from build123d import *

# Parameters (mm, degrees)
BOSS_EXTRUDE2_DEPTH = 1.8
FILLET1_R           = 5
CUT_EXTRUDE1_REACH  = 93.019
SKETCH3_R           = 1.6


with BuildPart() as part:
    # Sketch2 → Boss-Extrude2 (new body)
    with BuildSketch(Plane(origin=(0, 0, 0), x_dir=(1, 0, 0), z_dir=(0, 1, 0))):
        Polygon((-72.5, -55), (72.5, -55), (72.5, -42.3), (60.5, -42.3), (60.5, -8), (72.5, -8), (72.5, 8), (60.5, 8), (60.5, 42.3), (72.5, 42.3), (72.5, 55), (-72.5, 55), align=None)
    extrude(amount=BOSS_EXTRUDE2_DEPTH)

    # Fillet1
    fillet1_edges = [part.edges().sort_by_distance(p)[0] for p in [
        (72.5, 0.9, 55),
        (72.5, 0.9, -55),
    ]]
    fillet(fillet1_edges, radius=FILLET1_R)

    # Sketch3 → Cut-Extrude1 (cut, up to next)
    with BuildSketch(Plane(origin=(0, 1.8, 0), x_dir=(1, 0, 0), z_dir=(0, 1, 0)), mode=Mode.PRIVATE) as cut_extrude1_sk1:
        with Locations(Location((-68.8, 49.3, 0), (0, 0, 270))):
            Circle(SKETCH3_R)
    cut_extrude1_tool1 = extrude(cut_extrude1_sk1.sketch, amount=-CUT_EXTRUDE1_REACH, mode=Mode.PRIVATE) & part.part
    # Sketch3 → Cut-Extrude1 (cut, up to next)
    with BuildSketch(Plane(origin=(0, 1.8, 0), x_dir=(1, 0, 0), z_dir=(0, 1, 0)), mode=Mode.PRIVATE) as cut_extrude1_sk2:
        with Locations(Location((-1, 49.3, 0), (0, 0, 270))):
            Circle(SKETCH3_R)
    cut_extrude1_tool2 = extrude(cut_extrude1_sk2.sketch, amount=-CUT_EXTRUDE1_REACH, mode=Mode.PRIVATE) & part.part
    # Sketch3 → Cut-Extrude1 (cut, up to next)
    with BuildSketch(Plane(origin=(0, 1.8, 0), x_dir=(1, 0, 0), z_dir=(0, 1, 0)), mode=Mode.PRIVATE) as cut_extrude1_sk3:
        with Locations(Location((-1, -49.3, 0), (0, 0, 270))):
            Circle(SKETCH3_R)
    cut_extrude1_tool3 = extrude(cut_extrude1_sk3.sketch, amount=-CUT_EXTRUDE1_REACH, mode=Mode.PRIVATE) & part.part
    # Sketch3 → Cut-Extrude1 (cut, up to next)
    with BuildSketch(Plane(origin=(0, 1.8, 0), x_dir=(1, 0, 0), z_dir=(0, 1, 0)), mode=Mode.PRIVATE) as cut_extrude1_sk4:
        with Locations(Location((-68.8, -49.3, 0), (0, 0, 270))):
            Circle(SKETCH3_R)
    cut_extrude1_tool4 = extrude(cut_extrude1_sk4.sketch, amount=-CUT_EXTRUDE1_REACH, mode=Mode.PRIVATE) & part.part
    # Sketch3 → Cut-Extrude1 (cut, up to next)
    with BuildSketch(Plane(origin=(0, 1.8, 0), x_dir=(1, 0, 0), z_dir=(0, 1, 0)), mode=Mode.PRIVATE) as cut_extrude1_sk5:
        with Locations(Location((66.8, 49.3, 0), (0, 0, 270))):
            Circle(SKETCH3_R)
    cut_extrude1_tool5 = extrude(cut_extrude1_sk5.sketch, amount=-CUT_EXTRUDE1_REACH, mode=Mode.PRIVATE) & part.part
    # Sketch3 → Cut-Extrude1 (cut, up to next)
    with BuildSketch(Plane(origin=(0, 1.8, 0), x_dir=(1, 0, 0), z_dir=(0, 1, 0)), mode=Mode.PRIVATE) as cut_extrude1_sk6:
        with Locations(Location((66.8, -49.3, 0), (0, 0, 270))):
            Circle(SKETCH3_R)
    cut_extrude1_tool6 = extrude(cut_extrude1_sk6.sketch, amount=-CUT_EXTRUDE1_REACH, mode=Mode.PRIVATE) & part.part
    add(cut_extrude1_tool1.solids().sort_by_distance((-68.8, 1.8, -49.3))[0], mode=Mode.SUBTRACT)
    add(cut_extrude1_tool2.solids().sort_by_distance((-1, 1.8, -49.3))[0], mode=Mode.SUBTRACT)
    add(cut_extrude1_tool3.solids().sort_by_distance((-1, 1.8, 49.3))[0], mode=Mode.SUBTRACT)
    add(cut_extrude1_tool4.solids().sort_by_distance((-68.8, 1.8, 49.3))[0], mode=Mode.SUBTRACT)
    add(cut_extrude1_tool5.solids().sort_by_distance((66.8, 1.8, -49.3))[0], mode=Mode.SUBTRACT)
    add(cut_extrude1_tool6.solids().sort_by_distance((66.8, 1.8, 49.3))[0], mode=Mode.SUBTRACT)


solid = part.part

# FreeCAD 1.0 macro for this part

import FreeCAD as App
import Part
import Sketcher
from FreeCAD import Vector
Q = App.Units.Quantity


def edges_at(feature, points):
    """Names of the edges that pass closest to the given points."""
    edges = feature.Shape.Edges
    near = lambda p: min(range(len(edges)), key=lambda i: edges[i].distToShape(Part.Vertex(*p))[0])
    return sorted({f"Edge{near(p) + 1}" for p in points})

doc = App.newDocument("Part")
params = doc.addObject("Spreadsheet::Sheet", "Params")
for row, (alias, value) in enumerate([
    ("sketch1_width", "145 mm"),
    ("sketch1_width2", "12 mm"),
    ("sketch1_height", "16 mm"),
    ("sketch1_height2", "110 mm"),
    ("sketch1_height3", "12.7 mm"),
    ("pad1_length", "1.8 mm"),
    ("fillet_radius", "5 mm"),
    ("sketch2_diameter", "3.2 mm"),
    ("sketch3_diameter", "3.2 mm"),
    ("sketch4_diameter", "3.2 mm"),
    ("sketch5_diameter", "3.2 mm"),
    ("sketch6_diameter", "3.2 mm"),
    ("sketch7_diameter", "3.2 mm"),
], start=1):
    params.set(f"A{row}", alias)
    params.set(f"B{row}", "=" + value)
    params.setAlias(f"B{row}", alias)

body = doc.addObject("PartDesign::Body", "Body")

sketch1 = body.newObject("Sketcher::SketchObject", "Sketch")
sketch1.AttachmentSupport = (doc.getObject("XZ_Plane"), [""])
sketch1.MapMode = "FlatFace"
sketch1.addGeometry([
    Part.LineSegment(Vector(-72, 55, 0), Vector(72, 55, 0)),
    Part.LineSegment(Vector(72, 55, 0), Vector(72, 42, 0)),
    Part.LineSegment(Vector(72, 42, 0), Vector(60, 42, 0)),
    Part.LineSegment(Vector(60, 42, 0), Vector(60, 8, 0)),
    Part.LineSegment(Vector(60, 8, 0), Vector(72, 8, 0)),
    Part.LineSegment(Vector(72, 8, 0), Vector(72, -8, 0)),
    Part.LineSegment(Vector(72, -8, 0), Vector(60, -8, 0)),
    Part.LineSegment(Vector(60, -8, 0), Vector(60, -42, 0)),
    Part.LineSegment(Vector(60, -42, 0), Vector(72, -42, 0)),
    Part.LineSegment(Vector(72, -42, 0), Vector(72, -55, 0)),
    Part.LineSegment(Vector(72, -55, 0), Vector(-72, -55, 0)),
    Part.LineSegment(Vector(-72, -55, 0), Vector(-72, 55, 0)),
], False)
sketch1.addConstraint([
    Sketcher.Constraint("Coincident", 0, 2, 1, 1),
    Sketcher.Constraint("Coincident", 1, 2, 2, 1),
    Sketcher.Constraint("Coincident", 2, 2, 3, 1),
    Sketcher.Constraint("Coincident", 3, 2, 4, 1),
    Sketcher.Constraint("Coincident", 4, 2, 5, 1),
    Sketcher.Constraint("Coincident", 5, 2, 6, 1),
    Sketcher.Constraint("Coincident", 6, 2, 7, 1),
    Sketcher.Constraint("Coincident", 7, 2, 8, 1),
    Sketcher.Constraint("Coincident", 8, 2, 9, 1),
    Sketcher.Constraint("Coincident", 9, 2, 10, 1),
    Sketcher.Constraint("Coincident", 10, 2, 11, 1),
    Sketcher.Constraint("Coincident", 11, 2, 0, 1),
    Sketcher.Constraint("Horizontal", 0),
    Sketcher.Constraint("Vertical", 1),
    Sketcher.Constraint("Horizontal", 2),
    Sketcher.Constraint("Vertical", 3),
    Sketcher.Constraint("Horizontal", 4),
    Sketcher.Constraint("Vertical", 5),
    Sketcher.Constraint("Horizontal", 6),
    Sketcher.Constraint("Vertical", 7),
    Sketcher.Constraint("Horizontal", 8),
    Sketcher.Constraint("Vertical", 9),
    Sketcher.Constraint("Horizontal", 10),
    Sketcher.Constraint("Vertical", 11),
    Sketcher.Constraint("Symmetric", 0, 2, 10, 2, -1, 1),
    Sketcher.Constraint("Symmetric", 3, 2, 6, 2, -1),
    Sketcher.Constraint("Symmetric", 1, 2, 8, 2, -1),
    Sketcher.Constraint("Vertical", 1, 2, 4, 2),
    Sketcher.Constraint("DistanceX", 0, 1, 0, 2, Q("145 mm")),
    Sketcher.Constraint("DistanceX", 2, 2, 2, 1, Q("12 mm")),
    Sketcher.Constraint("DistanceY", 5, 2, 5, 1, Q("16 mm")),
    Sketcher.Constraint("DistanceY", 11, 1, 11, 2, Q("110 mm")),
    Sketcher.Constraint("DistanceY", 1, 2, 1, 1, Q("12.7 mm")),
])
sketch1.setExpression("Constraints[28]", "Params.sketch1_width")
sketch1.setExpression("Constraints[29]", "Params.sketch1_width2")
sketch1.setExpression("Constraints[30]", "Params.sketch1_height")
sketch1.setExpression("Constraints[31]", "Params.sketch1_height2")
sketch1.setExpression("Constraints[32]", "Params.sketch1_height3")
pad1 = body.newObject("PartDesign::Pad", "Pad")
pad1.Profile = sketch1
pad1.setExpression("Length", "Params.pad1_length")
pad1.Reversed = True
doc.recompute()

fillet = body.newObject("PartDesign::Fillet", "Fillet")
fillet.Base = (pad1, edges_at(pad1, [(72.5, 0.9, 55), (72.5, 0.9, -55)]))
fillet.setExpression("Radius", "Params.fillet_radius")

sketch2 = body.newObject("Sketcher::SketchObject", "Sketch001")
sketch2.AttachmentSupport = (doc.getObject("XZ_Plane"), [""])
sketch2.MapMode = "FlatFace"
sketch2.AttachmentOffset = App.Placement(Vector(0, 0, -1.8), App.Rotation())
sketch2.addGeometry(Part.Circle(Vector(-68.8, -49.3, 0), Vector(0, 0, 1), 1.6), False)
sketch2.addConstraint([
    Sketcher.Constraint("Diameter", 0, Q("3.2 mm")),
    Sketcher.Constraint("DistanceX", 0, 3, -1, 1, Q("68.8 mm")),
    Sketcher.Constraint("DistanceY", 0, 3, -1, 1, Q("49.3 mm")),
])
sketch2.setExpression("Constraints[0]", "Params.sketch2_diameter")
pocket1 = body.newObject("PartDesign::Pocket", "Pocket")
pocket1.Profile = sketch2
pocket1.Type = "UpToFirst"
pocket1.Reversed = True

sketch3 = body.newObject("Sketcher::SketchObject", "Sketch002")
sketch3.AttachmentSupport = (doc.getObject("XZ_Plane"), [""])
sketch3.MapMode = "FlatFace"
sketch3.AttachmentOffset = App.Placement(Vector(0, 0, -1.8), App.Rotation())
sketch3.addGeometry(Part.Circle(Vector(-1, -49.3, 0), Vector(0, 0, 1), 1.6), False)
sketch3.addConstraint([
    Sketcher.Constraint("Diameter", 0, Q("3.2 mm")),
    Sketcher.Constraint("DistanceX", 0, 3, -1, 1, Q("1 mm")),
    Sketcher.Constraint("DistanceY", 0, 3, -1, 1, Q("49.3 mm")),
])
sketch3.setExpression("Constraints[0]", "Params.sketch3_diameter")
pocket2 = body.newObject("PartDesign::Pocket", "Pocket001")
pocket2.Profile = sketch3
pocket2.Type = "UpToFirst"
pocket2.Reversed = True

sketch4 = body.newObject("Sketcher::SketchObject", "Sketch003")
sketch4.AttachmentSupport = (doc.getObject("XZ_Plane"), [""])
sketch4.MapMode = "FlatFace"
sketch4.AttachmentOffset = App.Placement(Vector(0, 0, -1.8), App.Rotation())
sketch4.addGeometry(Part.Circle(Vector(-1, 49.3, 0), Vector(0, 0, 1), 1.6), False)
sketch4.addConstraint([
    Sketcher.Constraint("Diameter", 0, Q("3.2 mm")),
    Sketcher.Constraint("DistanceX", 0, 3, -1, 1, Q("1 mm")),
    Sketcher.Constraint("DistanceY", -1, 1, 0, 3, Q("49.3 mm")),
])
sketch4.setExpression("Constraints[0]", "Params.sketch4_diameter")
pocket3 = body.newObject("PartDesign::Pocket", "Pocket002")
pocket3.Profile = sketch4
pocket3.Type = "UpToFirst"
pocket3.Reversed = True

sketch5 = body.newObject("Sketcher::SketchObject", "Sketch004")
sketch5.AttachmentSupport = (doc.getObject("XZ_Plane"), [""])
sketch5.MapMode = "FlatFace"
sketch5.AttachmentOffset = App.Placement(Vector(0, 0, -1.8), App.Rotation())
sketch5.addGeometry(Part.Circle(Vector(-68.8, 49.3, 0), Vector(0, 0, 1), 1.6), False)
sketch5.addConstraint([
    Sketcher.Constraint("Diameter", 0, Q("3.2 mm")),
    Sketcher.Constraint("DistanceX", 0, 3, -1, 1, Q("68.8 mm")),
    Sketcher.Constraint("DistanceY", -1, 1, 0, 3, Q("49.3 mm")),
])
sketch5.setExpression("Constraints[0]", "Params.sketch5_diameter")
pocket4 = body.newObject("PartDesign::Pocket", "Pocket003")
pocket4.Profile = sketch5
pocket4.Type = "UpToFirst"
pocket4.Reversed = True

sketch6 = body.newObject("Sketcher::SketchObject", "Sketch005")
sketch6.AttachmentSupport = (doc.getObject("XZ_Plane"), [""])
sketch6.MapMode = "FlatFace"
sketch6.AttachmentOffset = App.Placement(Vector(0, 0, -1.8), App.Rotation())
sketch6.addGeometry(Part.Circle(Vector(66.8, -49.3, 0), Vector(0, 0, 1), 1.6), False)
sketch6.addConstraint([
    Sketcher.Constraint("Diameter", 0, Q("3.2 mm")),
    Sketcher.Constraint("DistanceX", -1, 1, 0, 3, Q("66.8 mm")),
    Sketcher.Constraint("DistanceY", 0, 3, -1, 1, Q("49.3 mm")),
])
sketch6.setExpression("Constraints[0]", "Params.sketch6_diameter")
pocket5 = body.newObject("PartDesign::Pocket", "Pocket004")
pocket5.Profile = sketch6
pocket5.Type = "UpToFirst"
pocket5.Reversed = True

sketch7 = body.newObject("Sketcher::SketchObject", "Sketch006")
sketch7.AttachmentSupport = (doc.getObject("XZ_Plane"), [""])
sketch7.MapMode = "FlatFace"
sketch7.AttachmentOffset = App.Placement(Vector(0, 0, -1.8), App.Rotation())
sketch7.addGeometry(Part.Circle(Vector(66.8, 49.3, 0), Vector(0, 0, 1), 1.6), False)
sketch7.addConstraint([
    Sketcher.Constraint("Diameter", 0, Q("3.2 mm")),
    Sketcher.Constraint("DistanceX", -1, 1, 0, 3, Q("66.8 mm")),
    Sketcher.Constraint("DistanceY", -1, 1, 0, 3, Q("49.3 mm")),
])
sketch7.setExpression("Constraints[0]", "Params.sketch7_diameter")
pocket6 = body.newObject("PartDesign::Pocket", "Pocket005")
pocket6.Profile = sketch7
pocket6.Type = "UpToFirst"
pocket6.Reversed = True

doc.recompute()
